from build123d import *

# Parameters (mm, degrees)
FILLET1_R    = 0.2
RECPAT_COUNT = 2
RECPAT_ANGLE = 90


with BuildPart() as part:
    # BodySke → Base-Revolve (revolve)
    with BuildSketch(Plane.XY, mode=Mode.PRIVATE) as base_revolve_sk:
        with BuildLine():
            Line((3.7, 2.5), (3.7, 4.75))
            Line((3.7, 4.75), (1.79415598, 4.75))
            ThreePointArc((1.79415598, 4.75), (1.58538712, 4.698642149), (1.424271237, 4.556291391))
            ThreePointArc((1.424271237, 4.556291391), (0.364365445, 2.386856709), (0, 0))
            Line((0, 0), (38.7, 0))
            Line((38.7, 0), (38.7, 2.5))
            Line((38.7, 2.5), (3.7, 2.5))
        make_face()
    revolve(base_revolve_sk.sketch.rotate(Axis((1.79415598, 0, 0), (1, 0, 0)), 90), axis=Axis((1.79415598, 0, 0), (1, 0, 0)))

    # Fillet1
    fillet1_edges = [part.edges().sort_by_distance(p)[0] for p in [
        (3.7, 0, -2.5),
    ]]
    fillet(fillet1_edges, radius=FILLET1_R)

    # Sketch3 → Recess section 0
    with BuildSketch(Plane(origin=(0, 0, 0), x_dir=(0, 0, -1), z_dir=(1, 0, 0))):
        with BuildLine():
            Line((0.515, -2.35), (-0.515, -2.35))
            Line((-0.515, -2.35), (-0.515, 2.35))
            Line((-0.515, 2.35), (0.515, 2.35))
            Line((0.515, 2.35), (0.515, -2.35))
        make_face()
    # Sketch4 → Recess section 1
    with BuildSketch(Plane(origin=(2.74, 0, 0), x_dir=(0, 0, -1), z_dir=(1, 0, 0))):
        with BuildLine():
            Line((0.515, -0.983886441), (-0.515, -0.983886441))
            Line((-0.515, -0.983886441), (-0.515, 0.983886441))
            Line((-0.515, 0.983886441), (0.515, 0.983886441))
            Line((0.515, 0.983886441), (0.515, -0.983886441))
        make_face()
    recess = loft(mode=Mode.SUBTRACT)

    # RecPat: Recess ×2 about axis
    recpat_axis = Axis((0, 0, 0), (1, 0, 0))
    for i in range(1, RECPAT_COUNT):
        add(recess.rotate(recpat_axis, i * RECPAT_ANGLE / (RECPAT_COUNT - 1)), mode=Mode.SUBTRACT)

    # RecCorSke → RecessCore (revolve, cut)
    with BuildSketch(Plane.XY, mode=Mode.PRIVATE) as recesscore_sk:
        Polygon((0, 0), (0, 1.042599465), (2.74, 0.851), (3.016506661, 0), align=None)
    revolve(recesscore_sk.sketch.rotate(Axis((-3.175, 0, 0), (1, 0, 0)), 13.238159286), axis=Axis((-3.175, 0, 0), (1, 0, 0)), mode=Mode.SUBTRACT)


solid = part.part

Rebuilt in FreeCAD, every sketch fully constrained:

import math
import FreeCAD as App
import Part
import Sketcher
Q = App.Units.Quantity


def edges_at(feature, points):
    """Names of the edges that pass closest to the given points."""
    edges = feature.Shape.Edges
    near = lambda p: min(range(len(edges)), key=lambda i: edges[i].distToShape(Part.Vertex(*p))[0])
    return sorted({f"Edge{near(p) + 1}" for p in points})


def add_polygon(sketch, points):
    """Adds a closed chain of lines whose ends are joined by coincident constraints."""
    first, n = sketch.GeometryCount, len(points)
    for a, b in zip(points, points[1:] + points[:1]):
        sketch.addGeometry(Part.LineSegment(App.Vector(*a, 0), App.Vector(*b, 0)), False)
    for i in range(n):
        sketch.addConstraint(Sketcher.Constraint("Coincident", first + i, 2, first + (i + 1) % n, 1))

doc = App.newDocument("Part")
body = doc.addObject("PartDesign::Body", "Body")

sketch1 = doc.addObject("Sketcher::SketchObject", "Sketch")
body.addObject(sketch1)
sketch1.AttachmentSupport = (doc.XY_Plane, [""])
sketch1.MapMode = "FlatFace"
sketch1.addGeometry([
    Part.LineSegment(App.Vector(3.7, 2.5, 0), App.Vector(3.7, 4.75, 0)),
    Part.LineSegment(App.Vector(3.7, 4.75, 0), App.Vector(1.79, 4.75, 0)),
    Part.ArcOfCircle(Part.Circle(App.Vector(1.79, 4.3, 0), App.Vector(0, 0, 1), 0.45), math.radians(90), math.radians(145)),
    Part.ArcOfCircle(Part.Circle(App.Vector(8, 0, 0), App.Vector(0, 0, 1), 8), math.radians(145), math.radians(180)),
    Part.LineSegment(App.Vector(0, 0, 0), App.Vector(38.7, 0, 0)),
    Part.LineSegment(App.Vector(38.7, 0, 0), App.Vector(38.7, 2.5, 0)),
    Part.LineSegment(App.Vector(38.7, 2.5, 0), App.Vector(3.7, 2.5, 0)),
], False)
sketch1.addConstraint([
    Sketcher.Constraint("Coincident", 0, 2, 1, 1),
    Sketcher.Constraint("Tangent", 1, 2, 2, 1),
    Sketcher.Constraint("Tangent", 2, 2, 3, 1),
    Sketcher.Constraint("Coincident", 3, 2, 4, 1),
    Sketcher.Constraint("Coincident", 4, 2, 5, 1),
    Sketcher.Constraint("Coincident", 5, 2, 6, 1),
    Sketcher.Constraint("Coincident", 6, 2, 0, 1),
    Sketcher.Constraint("Vertical", 0),
    Sketcher.Constraint("Horizontal", 1),
    Sketcher.Constraint("Horizontal", 4),
    Sketcher.Constraint("Vertical", 5),
    Sketcher.Constraint("Horizontal", 6),
    Sketcher.Constraint("Coincident", 3, 2, -1, 1),
    Sketcher.Constraint("PointOnObject", 3, 3, -1),
    Sketcher.Constraint("Radius", 3, 8.0),
    Sketcher.Constraint("DistanceX", 6, 2, 6, 1, 35.0),
    Sketcher.Constraint("Radius", 2, 0.45),
    Sketcher.Constraint("DistanceX", 4, 1, 4, 2, 38.7),
    Sketcher.Constraint("DistanceY", 5, 1, 5, 2, 2.5),
    Sketcher.Constraint("DistanceY", 0, 1, 0, 2, 2.25),
])
revolution = doc.addObject("PartDesign::Revolution", "Revolution")
body.addObject(revolution)
revolution.Profile = sketch1
revolution.ReferenceAxis = (sketch1, ["H_Axis"])
revolution.Angle = 360
doc.recompute()

fillet = doc.addObject("PartDesign::Fillet", "Fillet")
body.addObject(fillet)
fillet.Base = (revolution, edges_at(revolution, [(3.7, 0, -2.5)]))
fillet.Radius = 0.2

sketch2 = doc.addObject("Sketcher::SketchObject", "Sketch001")
body.addObject(sketch2)
sketch2.AttachmentSupport = (doc.YZ_Plane, [""])
sketch2.MapMode = "FlatFace"
add_polygon(sketch2, [(-2.4, 0.5), (-2.4, -0.5), (2.4, -0.5), (2.4, 0.5)])
sketch2.addConstraint([
    Sketcher.Constraint("Vertical", 0),
    Sketcher.Constraint("Horizontal", 1),
    Sketcher.Constraint("Vertical", 2),
    Sketcher.Constraint("Horizontal", 3),
    Sketcher.Constraint("Symmetric", 0, 2, 2, 2, -1, 1),
    Sketcher.Constraint("DistanceX", 1, 1, 1, 2, 4.7),
    Sketcher.Constraint("DistanceY", 0, 2, 0, 1, 1.03),
])

sketch3 = doc.addObject("Sketcher::SketchObject", "Sketch002")
body.addObject(sketch3)
sketch3.AttachmentSupport = (doc.YZ_Plane, [""])
sketch3.MapMode = "FlatFace"
sketch3.AttachmentOffset = App.Placement(App.Vector(0, 0, 2.74), App.Rotation())
add_polygon(sketch3, [(-1, 0.5), (-1, -0.5), (1, -0.5), (1, 0.5)])
sketch3.addConstraint([
    Sketcher.Constraint("Vertical", 0),
    Sketcher.Constraint("Horizontal", 1),
    Sketcher.Constraint("Vertical", 2),
    Sketcher.Constraint("Horizontal", 3),
    Sketcher.Constraint("Symmetric", 0, 2, 2, 2, -1, 1),
    Sketcher.Constraint("DistanceY", 0, 2, 0, 1, 1.03),
    Sketcher.Constraint("DistanceX", 1, 1, 1, 2, 1.967773),
])

subtractiveloft = doc.addObject("PartDesign::SubtractiveLoft", "SubtractiveLoft")
body.addObject(subtractiveloft)
subtractiveloft.Profile = sketch2
subtractiveloft.Sections = [sketch3]
doc.recompute()

polarpattern = doc.addObject("PartDesign::PolarPattern", "PolarPattern")
body.addObject(polarpattern)
polarpattern.Originals = [subtractiveloft]
polarpattern.Axis = (doc.X_Axis, [""])
polarpattern.Angle = 90
polarpattern.Occurrences = 2
body.Tip = polarpattern

sketch4 = doc.addObject("Sketcher::SketchObject", "Sketch003")
body.addObject(sketch4)
sketch4.AttachmentSupport = (doc.XY_Plane, [""])
sketch4.MapMode = "FlatFace"
add_polygon(sketch4, [(0, 1), (0, 0), (3, 0), (2.7, 0.9)])
sketch4.addConstraint([
    Sketcher.Constraint("Vertical", 0),
    Sketcher.Constraint("Horizontal", 1),
    Sketcher.Constraint("Coincident", 0, 2, -1, 1),
    Sketcher.Constraint("Angle", 2, Q("108 deg")),
    Sketcher.Constraint("Angle", 3, Q("176 deg")),
    Sketcher.Constraint("DistanceX", -1, 1, 2, 2, 2.74),
    Sketcher.Constraint("DistanceY", 0, 2, 0, 1, 1.042599),
])
groove = doc.addObject("PartDesign::Groove", "Groove")
body.addObject(groove)
groove.Profile = sketch4
groove.ReferenceAxis = (sketch4, ["H_Axis"])
groove.Angle = 360

doc.recompute()
